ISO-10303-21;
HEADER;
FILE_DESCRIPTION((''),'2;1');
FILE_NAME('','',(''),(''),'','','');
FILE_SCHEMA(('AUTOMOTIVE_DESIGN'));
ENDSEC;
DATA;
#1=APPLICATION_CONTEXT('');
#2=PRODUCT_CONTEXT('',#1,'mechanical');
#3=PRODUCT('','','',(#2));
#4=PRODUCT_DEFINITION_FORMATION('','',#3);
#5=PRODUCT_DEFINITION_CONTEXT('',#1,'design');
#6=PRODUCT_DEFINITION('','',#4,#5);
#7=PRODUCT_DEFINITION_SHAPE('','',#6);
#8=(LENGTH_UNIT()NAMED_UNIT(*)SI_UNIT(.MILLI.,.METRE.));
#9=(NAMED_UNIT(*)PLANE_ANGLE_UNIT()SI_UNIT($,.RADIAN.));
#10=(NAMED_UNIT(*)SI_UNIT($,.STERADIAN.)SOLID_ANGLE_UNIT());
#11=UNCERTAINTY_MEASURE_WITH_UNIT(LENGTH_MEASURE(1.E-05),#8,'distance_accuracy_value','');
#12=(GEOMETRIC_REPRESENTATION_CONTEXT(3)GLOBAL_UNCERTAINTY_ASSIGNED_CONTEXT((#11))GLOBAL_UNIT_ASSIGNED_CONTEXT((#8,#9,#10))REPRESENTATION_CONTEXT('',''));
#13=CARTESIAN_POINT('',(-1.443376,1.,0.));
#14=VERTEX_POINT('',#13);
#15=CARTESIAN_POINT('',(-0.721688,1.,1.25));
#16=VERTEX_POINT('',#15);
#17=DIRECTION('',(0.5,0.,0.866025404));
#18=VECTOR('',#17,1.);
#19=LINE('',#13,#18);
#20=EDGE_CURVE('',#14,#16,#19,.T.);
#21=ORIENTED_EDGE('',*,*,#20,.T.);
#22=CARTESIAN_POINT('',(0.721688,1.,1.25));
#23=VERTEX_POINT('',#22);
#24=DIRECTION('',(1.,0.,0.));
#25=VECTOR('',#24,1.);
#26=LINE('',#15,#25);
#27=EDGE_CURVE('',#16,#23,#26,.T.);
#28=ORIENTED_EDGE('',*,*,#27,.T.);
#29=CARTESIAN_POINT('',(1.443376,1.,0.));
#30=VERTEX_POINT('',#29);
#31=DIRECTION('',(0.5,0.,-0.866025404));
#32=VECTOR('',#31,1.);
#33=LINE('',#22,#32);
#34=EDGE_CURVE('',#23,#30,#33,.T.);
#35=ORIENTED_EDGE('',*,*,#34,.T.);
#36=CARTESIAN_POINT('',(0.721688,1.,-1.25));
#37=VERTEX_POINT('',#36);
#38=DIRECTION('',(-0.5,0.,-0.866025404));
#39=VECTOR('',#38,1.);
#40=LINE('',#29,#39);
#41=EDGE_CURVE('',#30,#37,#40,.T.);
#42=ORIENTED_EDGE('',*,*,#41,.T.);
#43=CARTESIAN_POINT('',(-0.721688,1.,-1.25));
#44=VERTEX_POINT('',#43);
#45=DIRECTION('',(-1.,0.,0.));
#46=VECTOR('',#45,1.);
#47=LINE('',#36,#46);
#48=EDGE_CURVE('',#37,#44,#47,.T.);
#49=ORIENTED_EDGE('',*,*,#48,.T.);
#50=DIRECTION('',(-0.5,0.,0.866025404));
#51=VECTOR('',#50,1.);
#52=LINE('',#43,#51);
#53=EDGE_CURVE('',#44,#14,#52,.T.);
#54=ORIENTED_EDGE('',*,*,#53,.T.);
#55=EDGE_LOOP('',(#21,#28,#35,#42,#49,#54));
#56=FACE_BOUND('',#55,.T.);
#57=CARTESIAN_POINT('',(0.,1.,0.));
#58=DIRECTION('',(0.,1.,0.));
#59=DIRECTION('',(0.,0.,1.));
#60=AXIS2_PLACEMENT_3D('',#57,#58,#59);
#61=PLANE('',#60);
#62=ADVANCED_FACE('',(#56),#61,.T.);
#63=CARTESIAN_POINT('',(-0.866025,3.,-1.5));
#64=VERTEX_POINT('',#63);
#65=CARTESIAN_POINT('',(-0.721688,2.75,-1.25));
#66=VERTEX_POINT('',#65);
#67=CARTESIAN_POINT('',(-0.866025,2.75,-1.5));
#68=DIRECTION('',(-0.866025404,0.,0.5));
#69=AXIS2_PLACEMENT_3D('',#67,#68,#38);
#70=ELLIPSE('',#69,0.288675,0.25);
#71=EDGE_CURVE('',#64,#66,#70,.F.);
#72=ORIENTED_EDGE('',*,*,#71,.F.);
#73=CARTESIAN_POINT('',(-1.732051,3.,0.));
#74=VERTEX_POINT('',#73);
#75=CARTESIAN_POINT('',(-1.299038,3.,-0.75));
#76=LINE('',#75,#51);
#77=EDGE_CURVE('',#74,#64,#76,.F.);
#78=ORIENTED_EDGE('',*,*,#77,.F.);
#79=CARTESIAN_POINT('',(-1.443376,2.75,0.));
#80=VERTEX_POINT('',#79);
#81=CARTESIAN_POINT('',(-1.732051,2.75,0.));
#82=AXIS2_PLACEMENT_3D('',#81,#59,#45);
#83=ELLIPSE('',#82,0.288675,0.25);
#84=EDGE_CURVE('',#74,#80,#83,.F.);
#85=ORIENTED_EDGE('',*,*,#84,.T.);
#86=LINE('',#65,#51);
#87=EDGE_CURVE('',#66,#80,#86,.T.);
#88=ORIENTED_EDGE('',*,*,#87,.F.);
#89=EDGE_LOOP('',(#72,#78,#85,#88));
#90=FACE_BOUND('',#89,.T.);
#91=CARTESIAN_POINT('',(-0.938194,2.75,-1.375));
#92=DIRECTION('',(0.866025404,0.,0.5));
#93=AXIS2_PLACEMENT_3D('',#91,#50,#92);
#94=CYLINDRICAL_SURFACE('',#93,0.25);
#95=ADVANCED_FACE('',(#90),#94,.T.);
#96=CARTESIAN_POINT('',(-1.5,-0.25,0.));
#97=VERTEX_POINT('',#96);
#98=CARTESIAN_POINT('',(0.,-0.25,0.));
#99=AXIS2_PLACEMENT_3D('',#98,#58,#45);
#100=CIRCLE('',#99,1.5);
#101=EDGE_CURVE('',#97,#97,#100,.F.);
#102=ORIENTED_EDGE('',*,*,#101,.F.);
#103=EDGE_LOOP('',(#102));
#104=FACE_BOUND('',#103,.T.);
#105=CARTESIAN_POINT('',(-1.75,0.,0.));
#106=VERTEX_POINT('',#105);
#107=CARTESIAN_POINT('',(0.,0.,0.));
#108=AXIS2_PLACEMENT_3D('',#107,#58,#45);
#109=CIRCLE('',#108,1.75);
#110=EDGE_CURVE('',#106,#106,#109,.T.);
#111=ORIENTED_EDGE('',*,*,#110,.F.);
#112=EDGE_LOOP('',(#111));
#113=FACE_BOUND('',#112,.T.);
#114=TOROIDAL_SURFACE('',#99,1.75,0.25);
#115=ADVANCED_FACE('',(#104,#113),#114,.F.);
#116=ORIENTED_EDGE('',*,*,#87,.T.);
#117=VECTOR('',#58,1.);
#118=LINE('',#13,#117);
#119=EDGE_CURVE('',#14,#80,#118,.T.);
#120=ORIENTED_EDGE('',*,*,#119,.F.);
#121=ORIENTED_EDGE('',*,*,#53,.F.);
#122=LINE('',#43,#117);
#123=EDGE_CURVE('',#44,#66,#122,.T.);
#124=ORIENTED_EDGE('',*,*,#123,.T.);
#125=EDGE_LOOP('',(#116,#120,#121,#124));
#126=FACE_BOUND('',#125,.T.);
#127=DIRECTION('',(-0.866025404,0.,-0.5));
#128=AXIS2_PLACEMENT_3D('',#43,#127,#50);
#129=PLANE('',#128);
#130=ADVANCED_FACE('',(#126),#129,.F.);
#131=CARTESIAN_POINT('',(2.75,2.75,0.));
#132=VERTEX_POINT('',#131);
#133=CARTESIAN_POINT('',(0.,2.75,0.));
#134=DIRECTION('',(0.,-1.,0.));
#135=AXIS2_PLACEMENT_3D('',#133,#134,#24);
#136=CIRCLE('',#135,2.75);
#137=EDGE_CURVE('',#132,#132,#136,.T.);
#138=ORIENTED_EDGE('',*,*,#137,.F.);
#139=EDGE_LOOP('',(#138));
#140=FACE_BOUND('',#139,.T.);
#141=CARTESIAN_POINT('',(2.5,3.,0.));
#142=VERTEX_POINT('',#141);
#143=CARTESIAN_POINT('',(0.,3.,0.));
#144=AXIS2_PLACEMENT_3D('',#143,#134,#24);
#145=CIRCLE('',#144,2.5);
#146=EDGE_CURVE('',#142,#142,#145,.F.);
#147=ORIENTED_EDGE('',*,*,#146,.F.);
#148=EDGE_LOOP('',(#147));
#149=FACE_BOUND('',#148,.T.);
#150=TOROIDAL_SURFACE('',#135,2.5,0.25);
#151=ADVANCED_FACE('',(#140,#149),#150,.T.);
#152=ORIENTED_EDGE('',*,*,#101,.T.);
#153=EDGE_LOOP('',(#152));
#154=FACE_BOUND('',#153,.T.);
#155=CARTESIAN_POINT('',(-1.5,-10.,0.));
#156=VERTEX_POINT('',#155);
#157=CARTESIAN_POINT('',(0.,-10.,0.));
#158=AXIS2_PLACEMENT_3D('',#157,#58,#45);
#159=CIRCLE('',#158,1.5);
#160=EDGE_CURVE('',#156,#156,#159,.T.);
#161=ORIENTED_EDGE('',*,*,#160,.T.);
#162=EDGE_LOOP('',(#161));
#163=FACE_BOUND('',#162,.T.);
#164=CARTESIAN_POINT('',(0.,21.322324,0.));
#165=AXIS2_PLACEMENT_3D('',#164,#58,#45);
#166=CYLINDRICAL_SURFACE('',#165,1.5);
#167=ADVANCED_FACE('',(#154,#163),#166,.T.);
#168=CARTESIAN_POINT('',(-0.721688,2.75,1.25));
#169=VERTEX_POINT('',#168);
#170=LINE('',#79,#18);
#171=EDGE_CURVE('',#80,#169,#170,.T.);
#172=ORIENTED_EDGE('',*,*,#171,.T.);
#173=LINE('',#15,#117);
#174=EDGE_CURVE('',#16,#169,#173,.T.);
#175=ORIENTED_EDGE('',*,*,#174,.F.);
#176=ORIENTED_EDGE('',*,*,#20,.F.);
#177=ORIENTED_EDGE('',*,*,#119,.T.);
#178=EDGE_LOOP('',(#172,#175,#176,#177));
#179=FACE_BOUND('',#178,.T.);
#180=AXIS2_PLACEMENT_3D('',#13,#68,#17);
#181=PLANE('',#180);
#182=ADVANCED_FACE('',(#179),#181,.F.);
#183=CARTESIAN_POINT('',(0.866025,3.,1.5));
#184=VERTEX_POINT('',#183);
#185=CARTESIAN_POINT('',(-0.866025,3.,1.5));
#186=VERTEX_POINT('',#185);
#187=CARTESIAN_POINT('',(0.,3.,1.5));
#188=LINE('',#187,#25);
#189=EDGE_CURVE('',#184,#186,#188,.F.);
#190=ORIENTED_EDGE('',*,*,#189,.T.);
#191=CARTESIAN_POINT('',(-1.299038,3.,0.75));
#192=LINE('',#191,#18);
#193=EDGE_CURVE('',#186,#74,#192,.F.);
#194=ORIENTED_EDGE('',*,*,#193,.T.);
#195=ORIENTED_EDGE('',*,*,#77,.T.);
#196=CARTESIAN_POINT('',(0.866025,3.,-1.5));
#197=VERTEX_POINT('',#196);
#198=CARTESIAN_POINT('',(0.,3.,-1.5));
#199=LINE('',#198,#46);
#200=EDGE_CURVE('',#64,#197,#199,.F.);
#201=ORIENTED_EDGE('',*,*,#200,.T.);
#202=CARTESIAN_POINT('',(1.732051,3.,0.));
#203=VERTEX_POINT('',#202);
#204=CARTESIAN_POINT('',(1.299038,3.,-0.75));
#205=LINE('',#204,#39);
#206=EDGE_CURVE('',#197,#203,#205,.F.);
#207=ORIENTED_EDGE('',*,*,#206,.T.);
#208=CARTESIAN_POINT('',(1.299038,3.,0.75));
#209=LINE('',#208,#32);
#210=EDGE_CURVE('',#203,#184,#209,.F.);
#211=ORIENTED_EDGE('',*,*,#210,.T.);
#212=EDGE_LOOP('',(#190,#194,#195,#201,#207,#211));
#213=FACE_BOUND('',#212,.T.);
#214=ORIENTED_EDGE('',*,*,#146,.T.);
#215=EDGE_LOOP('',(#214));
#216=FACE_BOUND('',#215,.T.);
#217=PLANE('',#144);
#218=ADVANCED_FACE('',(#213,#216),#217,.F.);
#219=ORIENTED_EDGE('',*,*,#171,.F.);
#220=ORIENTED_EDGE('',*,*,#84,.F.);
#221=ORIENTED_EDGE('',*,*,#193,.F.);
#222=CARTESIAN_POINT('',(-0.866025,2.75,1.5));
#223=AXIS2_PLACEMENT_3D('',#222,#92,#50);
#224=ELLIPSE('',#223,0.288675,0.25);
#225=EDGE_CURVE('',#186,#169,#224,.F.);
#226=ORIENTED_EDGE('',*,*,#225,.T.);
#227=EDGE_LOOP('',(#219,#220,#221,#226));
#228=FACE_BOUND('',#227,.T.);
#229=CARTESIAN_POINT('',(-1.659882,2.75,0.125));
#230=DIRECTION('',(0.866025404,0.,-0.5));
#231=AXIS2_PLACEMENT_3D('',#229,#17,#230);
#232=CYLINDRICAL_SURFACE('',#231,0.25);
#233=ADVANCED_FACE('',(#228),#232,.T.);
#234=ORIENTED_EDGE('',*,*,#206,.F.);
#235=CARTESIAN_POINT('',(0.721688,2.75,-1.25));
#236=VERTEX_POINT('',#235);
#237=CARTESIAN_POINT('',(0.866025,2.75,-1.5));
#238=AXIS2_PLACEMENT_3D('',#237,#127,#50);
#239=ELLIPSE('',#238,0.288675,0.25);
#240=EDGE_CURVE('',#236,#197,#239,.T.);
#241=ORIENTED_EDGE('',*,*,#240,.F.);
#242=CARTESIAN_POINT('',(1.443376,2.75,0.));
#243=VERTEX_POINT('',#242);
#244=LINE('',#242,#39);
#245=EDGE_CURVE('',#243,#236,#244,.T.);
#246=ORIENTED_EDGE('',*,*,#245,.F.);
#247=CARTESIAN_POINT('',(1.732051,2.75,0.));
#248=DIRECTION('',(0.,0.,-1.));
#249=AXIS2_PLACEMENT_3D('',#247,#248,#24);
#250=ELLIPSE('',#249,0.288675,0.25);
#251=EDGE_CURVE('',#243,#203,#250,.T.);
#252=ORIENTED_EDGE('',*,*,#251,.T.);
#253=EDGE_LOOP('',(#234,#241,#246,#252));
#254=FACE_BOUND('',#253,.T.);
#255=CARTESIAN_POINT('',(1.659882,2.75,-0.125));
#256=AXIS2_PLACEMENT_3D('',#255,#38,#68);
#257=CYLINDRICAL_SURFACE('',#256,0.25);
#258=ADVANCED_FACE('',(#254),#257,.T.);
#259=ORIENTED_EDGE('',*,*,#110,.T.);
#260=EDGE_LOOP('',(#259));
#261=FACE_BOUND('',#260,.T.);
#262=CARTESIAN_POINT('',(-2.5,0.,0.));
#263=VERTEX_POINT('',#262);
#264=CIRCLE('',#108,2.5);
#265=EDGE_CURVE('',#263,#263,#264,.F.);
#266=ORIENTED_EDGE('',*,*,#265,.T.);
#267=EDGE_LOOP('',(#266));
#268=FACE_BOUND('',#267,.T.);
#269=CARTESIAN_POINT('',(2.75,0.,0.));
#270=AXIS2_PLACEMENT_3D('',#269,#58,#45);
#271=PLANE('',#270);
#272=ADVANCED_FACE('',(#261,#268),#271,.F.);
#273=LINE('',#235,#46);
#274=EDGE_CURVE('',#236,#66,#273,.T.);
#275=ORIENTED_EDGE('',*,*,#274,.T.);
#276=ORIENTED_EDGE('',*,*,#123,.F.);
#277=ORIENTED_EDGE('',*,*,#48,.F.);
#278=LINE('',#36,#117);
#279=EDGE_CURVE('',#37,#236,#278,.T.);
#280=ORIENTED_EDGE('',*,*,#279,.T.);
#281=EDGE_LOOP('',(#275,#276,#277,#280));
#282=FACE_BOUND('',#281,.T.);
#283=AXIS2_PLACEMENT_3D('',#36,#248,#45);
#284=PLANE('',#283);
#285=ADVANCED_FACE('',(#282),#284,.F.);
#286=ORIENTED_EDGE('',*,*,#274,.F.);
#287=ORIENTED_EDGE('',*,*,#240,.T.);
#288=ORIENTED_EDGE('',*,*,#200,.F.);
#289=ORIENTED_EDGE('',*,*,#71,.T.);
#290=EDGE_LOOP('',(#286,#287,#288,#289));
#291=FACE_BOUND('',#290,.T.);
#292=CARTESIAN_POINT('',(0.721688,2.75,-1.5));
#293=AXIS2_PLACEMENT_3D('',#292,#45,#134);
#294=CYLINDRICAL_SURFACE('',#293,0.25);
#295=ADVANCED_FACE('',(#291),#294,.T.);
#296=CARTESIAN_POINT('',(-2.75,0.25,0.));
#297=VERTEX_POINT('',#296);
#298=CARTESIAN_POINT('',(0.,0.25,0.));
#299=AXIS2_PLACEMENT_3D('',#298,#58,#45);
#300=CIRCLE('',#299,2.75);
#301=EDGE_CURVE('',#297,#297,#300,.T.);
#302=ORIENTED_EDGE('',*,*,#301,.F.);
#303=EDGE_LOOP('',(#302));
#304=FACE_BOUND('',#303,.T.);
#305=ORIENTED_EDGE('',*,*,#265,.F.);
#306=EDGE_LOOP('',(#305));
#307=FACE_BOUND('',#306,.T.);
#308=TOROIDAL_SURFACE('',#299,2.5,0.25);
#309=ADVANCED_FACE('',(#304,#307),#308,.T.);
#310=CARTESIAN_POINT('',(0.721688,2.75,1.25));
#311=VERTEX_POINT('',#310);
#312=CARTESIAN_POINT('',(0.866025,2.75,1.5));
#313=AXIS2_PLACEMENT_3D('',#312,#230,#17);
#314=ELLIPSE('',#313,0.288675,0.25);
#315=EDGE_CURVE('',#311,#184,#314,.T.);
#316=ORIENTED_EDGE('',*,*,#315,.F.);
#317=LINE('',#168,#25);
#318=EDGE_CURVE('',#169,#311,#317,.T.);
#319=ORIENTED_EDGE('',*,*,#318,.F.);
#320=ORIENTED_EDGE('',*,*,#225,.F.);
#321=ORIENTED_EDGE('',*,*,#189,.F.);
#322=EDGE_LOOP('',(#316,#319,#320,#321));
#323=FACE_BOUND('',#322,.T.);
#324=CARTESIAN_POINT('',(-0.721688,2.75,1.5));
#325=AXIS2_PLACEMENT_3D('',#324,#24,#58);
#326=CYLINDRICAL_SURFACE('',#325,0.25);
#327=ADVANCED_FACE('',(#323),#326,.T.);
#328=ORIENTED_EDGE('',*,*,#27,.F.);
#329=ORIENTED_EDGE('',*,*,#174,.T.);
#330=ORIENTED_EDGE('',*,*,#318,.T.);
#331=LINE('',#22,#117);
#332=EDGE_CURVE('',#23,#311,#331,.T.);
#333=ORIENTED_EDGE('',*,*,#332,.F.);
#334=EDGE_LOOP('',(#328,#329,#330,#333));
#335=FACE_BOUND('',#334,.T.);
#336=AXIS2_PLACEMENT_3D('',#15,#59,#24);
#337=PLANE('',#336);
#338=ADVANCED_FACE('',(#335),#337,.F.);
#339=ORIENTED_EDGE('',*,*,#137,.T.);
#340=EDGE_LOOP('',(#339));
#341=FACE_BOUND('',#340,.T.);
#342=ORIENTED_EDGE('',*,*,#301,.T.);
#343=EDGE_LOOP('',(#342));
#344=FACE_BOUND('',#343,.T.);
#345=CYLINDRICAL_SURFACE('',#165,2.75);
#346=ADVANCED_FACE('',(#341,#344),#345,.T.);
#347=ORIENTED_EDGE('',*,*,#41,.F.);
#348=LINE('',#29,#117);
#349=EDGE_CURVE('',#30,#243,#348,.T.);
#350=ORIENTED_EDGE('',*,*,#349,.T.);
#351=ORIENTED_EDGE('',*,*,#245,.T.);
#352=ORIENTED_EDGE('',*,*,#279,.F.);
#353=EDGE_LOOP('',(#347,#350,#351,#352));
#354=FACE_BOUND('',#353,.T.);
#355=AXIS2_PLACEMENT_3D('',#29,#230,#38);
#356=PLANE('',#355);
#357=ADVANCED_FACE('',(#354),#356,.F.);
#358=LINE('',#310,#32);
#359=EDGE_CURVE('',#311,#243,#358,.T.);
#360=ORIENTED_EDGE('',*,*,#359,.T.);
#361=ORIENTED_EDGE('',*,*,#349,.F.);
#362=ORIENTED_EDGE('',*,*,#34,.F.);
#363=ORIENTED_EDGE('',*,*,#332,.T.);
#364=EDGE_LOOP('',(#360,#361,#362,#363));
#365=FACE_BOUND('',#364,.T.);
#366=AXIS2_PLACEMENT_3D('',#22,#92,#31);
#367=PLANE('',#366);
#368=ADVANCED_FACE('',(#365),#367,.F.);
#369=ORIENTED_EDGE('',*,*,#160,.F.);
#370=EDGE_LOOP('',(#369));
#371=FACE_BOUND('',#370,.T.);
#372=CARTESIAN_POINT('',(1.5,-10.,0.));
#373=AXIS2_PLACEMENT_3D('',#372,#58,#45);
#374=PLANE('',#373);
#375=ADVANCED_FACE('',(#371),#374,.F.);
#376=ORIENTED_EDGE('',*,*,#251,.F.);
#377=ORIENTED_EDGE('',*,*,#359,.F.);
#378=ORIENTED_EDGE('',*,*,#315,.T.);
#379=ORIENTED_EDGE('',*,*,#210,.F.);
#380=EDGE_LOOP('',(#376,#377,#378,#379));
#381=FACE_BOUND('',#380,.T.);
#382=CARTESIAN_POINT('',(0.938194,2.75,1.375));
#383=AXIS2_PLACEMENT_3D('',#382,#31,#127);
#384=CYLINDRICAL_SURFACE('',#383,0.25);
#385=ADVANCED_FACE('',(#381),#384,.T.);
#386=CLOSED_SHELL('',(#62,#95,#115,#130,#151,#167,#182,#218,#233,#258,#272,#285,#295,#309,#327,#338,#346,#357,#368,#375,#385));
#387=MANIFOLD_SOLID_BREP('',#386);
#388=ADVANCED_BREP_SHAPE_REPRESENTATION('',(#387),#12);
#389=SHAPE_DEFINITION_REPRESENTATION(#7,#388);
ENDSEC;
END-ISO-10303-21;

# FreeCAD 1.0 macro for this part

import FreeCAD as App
import Part
import Sketcher

V = App.Vector
Q = App.Units.Quantity


def edges_at(feature, points):
    """Names of the edges that pass closest to the given points."""
    edges = feature.Shape.Edges
    near = lambda p: min(range(len(edges)), key=lambda i: edges[i].distToShape(Part.Vertex(*p))[0])
    return sorted({f"Edge{near(p) + 1}" for p in points})

doc = App.newDocument("Part")
body = doc.addObject("PartDesign::Body", "Body")

# Sketch on XY plane
sketch1 = body.newObject("Sketcher::SketchObject", "Sketch")
sketch1.AttachmentSupport = (doc.getObject("XY_Plane"), [""])
sketch1.MapMode = "FlatFace"
sketch1.addGeometry(Part.LineSegment(V(2.75, 3, 0), V(0, 3, 0)), False)
sketch1.addGeometry(Part.LineSegment(V(0, 3, 0), V(0, -10, 0)), False)
sketch1.addGeometry(Part.LineSegment(V(0, -10, 0), V(1.5, -10, 0)), False)
sketch1.addGeometry(Part.LineSegment(V(1.5, -10, 0), V(1.5, 0, 0)), False)
sketch1.addGeometry(Part.LineSegment(V(1.5, 0, 0), V(2.75, 0, 0)), False)
sketch1.addGeometry(Part.LineSegment(V(2.75, 0, 0), V(2.75, 3, 0)), False)
sketch1.addConstraint(Sketcher.Constraint("Coincident", 0, 2, 1, 1))
sketch1.addConstraint(Sketcher.Constraint("Coincident", 1, 2, 2, 1))
sketch1.addConstraint(Sketcher.Constraint("Coincident", 2, 2, 3, 1))
sketch1.addConstraint(Sketcher.Constraint("Coincident", 3, 2, 4, 1))
sketch1.addConstraint(Sketcher.Constraint("Coincident", 4, 2, 5, 1))
sketch1.addConstraint(Sketcher.Constraint("Coincident", 5, 2, 0, 1))
sketch1.addConstraint(Sketcher.Constraint("Horizontal", 0))
sketch1.addConstraint(Sketcher.Constraint("Vertical", 1))
sketch1.addConstraint(Sketcher.Constraint("Horizontal", 2))
sketch1.addConstraint(Sketcher.Constraint("Vertical", 3))
sketch1.addConstraint(Sketcher.Constraint("Horizontal", 4))
sketch1.addConstraint(Sketcher.Constraint("Vertical", 5))
sketch1.addConstraint(Sketcher.Constraint("PointOnObject", 0, 2, -2))
sketch1.addConstraint(Sketcher.Constraint("PointOnObject", 3, 2, -1))
sketch1.addConstraint(Sketcher.Constraint("DistanceY", 1, 2, 1, 1, Q("13 mm")))
sketch1.addConstraint(Sketcher.Constraint("DistanceY", 3, 1, 3, 2, Q("10 mm")))
sketch1.addConstraint(Sketcher.Constraint("DistanceX", 2, 1, 2, 2, Q("1.5 mm")))
sketch1.addConstraint(Sketcher.Constraint("DistanceX", 0, 2, 0, 1, Q("2.75 mm")))
revolution = body.newObject("PartDesign::Revolution", "Revolution")
revolution.Profile = sketch1
revolution.ReferenceAxis = (sketch1, ["V_Axis"])
revolution.Angle = 360

# Sketch on XZ plane
sketch2 = body.newObject("Sketcher::SketchObject", "Sketch001")
sketch2.AttachmentSupport = (doc.getObject("XZ_Plane"), [""])
sketch2.MapMode = "FlatFace"
sketch2.AttachmentOffset = App.Placement(V(0, 0, -3), App.Rotation())
sketch2.addGeometry(Part.LineSegment(V(1.443376, 0, 0), V(0.721688, -1.25, 0)), False)
sketch2.addGeometry(Part.LineSegment(V(0.721688, -1.25, 0), V(-0.721688, -1.25, 0)), False)
sketch2.addGeometry(Part.LineSegment(V(-0.721688, -1.25, 0), V(-1.443376, 0, 0)), False)
sketch2.addGeometry(Part.LineSegment(V(-1.443376, 0, 0), V(-0.721688, 1.25, 0)), False)
sketch2.addGeometry(Part.LineSegment(V(-0.721688, 1.25, 0), V(0.721688, 1.25, 0)), False)
sketch2.addGeometry(Part.LineSegment(V(0.721688, 1.25, 0), V(1.443376, 0, 0)), False)
sketch2.addConstraint(Sketcher.Constraint("Coincident", 0, 2, 1, 1))
sketch2.addConstraint(Sketcher.Constraint("Coincident", 1, 2, 2, 1))
sketch2.addConstraint(Sketcher.Constraint("Coincident", 2, 2, 3, 1))
sketch2.addConstraint(Sketcher.Constraint("Coincident", 3, 2, 4, 1))
sketch2.addConstraint(Sketcher.Constraint("Coincident", 4, 2, 5, 1))
sketch2.addConstraint(Sketcher.Constraint("Coincident", 5, 2, 0, 1))
sketch2.addConstraint(Sketcher.Constraint("Horizontal", 1))
sketch2.addConstraint(Sketcher.Constraint("Horizontal", 4))
sketch2.addConstraint(Sketcher.Constraint("Symmetric", 0, 2, 3, 2, -1, 1))
sketch2.addConstraint(Sketcher.Constraint("Symmetric", 2, 2, 5, 2, -1, 1))
sketch2.addConstraint(Sketcher.Constraint("PointOnObject", 2, 2, -1))
sketch2.addConstraint(Sketcher.Constraint("Parallel", 2, 5))
sketch2.addConstraint(Sketcher.Constraint("Vertical", 1, 2, 3, 2))
sketch2.addConstraint(Sketcher.Constraint("Angle", 0, Q("-120 deg")))
sketch2.addConstraint(Sketcher.Constraint("DistanceY", 1, 2, 3, 2, Q("2.5 mm")))
sketch2.addConstraint(Sketcher.Constraint("DistanceX", 1, 2, 1, 1, Q("1.443376 mm")))
pocket1 = body.newObject("PartDesign::Pocket", "Pocket")
pocket1.Profile = sketch2
pocket1.Length = 2
pocket1.Reversed = True
doc.recompute()

fillet = body.newObject("PartDesign::Fillet", "Fillet")
fillet.Base = (pocket1, edges_at(pocket1, [
    (1.083, 3, 0.625),
    (1.083, 3, -0.625),
    (0, 3, -1.25),
    (-1.083, 3, -0.625),
    (-1.083, 3, 0.625),
    (0, 3, 1.25),
    (1.5, 0, 0),
    (2.75, 0, 0),
    (2.75, 3, 0),
]))
fillet.Radius = 0.25

doc.recompute()
